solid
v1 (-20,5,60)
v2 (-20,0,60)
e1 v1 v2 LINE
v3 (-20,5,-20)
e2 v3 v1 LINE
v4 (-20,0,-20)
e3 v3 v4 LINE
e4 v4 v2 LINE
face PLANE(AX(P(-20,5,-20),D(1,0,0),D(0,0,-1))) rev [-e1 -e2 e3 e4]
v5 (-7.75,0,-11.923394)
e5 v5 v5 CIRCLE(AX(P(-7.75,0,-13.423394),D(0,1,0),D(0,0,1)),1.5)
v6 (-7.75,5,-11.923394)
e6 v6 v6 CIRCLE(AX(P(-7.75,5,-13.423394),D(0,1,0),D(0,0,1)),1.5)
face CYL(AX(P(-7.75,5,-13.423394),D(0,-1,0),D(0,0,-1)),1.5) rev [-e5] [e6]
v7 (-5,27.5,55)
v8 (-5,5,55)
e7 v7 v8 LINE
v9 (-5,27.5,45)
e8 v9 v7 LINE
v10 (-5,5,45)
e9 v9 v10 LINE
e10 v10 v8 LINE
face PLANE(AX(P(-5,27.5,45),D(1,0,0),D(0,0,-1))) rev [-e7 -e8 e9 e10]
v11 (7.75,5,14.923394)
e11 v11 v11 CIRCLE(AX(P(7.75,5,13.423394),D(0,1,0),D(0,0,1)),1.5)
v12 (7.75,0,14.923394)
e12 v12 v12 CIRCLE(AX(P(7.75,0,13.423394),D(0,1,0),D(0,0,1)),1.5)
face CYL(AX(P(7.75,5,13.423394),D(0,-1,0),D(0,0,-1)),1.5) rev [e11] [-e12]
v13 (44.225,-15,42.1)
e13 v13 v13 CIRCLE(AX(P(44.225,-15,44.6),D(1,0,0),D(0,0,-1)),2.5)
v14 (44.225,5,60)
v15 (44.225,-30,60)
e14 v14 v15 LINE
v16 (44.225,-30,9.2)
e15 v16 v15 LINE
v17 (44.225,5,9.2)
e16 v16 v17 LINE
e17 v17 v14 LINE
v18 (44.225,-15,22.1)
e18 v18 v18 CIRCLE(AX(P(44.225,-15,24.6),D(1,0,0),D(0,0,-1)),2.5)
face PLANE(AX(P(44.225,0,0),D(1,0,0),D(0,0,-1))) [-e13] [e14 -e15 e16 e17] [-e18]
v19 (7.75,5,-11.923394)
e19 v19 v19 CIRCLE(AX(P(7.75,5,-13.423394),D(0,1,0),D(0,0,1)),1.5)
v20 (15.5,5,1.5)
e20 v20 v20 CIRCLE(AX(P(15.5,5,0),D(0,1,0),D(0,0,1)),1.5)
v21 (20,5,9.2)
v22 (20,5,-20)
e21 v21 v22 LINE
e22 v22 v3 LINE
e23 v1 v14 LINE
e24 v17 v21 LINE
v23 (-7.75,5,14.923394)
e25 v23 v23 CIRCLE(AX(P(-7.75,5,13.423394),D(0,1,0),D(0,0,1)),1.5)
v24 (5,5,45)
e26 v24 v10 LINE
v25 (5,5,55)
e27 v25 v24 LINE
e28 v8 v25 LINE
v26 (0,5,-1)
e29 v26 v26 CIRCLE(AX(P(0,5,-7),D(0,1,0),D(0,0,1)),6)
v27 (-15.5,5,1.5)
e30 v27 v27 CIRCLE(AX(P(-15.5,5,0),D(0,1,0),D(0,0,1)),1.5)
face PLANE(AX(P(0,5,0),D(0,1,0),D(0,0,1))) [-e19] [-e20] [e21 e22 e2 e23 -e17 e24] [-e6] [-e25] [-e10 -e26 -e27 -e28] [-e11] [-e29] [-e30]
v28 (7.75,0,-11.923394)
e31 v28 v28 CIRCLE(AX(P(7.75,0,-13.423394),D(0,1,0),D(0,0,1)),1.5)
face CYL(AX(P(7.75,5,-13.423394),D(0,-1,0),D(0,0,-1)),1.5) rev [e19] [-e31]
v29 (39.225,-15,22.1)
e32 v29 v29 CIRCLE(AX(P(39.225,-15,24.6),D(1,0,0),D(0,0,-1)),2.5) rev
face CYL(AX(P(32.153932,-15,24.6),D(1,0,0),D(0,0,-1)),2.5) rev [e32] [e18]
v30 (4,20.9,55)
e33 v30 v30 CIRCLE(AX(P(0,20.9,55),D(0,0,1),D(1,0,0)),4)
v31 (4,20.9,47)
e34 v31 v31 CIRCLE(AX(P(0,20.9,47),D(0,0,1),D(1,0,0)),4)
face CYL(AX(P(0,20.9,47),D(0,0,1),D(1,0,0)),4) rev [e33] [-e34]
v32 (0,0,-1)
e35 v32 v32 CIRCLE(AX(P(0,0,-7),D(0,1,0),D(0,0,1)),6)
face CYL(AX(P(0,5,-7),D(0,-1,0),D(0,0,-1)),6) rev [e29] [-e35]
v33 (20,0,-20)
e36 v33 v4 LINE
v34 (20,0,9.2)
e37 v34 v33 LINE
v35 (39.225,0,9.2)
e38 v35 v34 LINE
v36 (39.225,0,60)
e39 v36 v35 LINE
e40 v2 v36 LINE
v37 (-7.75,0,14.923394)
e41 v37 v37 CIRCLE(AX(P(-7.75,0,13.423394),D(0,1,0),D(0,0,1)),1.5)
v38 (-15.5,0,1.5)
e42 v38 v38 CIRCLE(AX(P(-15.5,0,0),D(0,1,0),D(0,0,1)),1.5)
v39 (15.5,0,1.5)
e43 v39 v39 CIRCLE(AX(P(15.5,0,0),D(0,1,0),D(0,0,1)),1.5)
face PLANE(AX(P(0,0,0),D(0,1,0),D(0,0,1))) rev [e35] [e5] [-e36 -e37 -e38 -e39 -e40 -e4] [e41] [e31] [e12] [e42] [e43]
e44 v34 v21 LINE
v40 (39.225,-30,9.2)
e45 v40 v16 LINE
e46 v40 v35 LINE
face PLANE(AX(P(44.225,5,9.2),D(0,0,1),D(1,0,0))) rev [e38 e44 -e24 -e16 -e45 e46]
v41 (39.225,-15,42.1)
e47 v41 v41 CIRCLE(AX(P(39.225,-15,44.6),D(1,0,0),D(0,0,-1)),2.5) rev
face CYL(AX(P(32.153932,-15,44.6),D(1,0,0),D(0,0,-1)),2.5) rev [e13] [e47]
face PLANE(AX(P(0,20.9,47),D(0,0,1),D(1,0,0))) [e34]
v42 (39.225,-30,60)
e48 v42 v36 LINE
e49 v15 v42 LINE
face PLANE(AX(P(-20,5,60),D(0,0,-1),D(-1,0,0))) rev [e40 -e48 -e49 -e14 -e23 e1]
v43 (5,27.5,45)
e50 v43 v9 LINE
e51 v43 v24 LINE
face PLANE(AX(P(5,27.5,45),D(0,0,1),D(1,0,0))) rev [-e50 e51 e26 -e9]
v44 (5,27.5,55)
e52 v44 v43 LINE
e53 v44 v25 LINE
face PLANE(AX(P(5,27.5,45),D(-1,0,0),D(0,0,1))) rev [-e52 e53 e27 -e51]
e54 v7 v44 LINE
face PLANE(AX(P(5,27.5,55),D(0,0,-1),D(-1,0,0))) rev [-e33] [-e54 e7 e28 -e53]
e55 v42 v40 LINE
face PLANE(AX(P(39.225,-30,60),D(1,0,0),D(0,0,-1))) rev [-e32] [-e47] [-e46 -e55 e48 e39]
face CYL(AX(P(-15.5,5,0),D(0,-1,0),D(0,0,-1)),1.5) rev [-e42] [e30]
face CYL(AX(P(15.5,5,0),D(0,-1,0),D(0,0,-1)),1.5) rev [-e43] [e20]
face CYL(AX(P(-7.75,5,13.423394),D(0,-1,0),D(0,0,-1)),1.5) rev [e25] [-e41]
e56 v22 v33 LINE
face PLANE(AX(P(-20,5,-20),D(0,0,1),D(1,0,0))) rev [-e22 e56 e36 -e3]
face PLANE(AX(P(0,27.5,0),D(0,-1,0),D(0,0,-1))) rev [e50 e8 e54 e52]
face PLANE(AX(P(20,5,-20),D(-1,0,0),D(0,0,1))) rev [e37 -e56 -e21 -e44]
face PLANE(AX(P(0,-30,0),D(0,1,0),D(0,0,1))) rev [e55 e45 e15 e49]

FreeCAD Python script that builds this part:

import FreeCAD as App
import Part
import Sketcher

V = App.Vector

doc = App.newDocument("Part")
body = doc.addObject("PartDesign::Body", "Body")

sketch1 = body.newObject("Sketcher::SketchObject", "Sketch")
sketch1.AttachmentSupport = (doc.getObject("XZ_Plane"), [""])
sketch1.MapMode = "FlatFace"
sketch1.addGeometry([
    Part.LineSegment(V(-20, -20, 0), V(-20, 60, 0)),
    Part.LineSegment(V(-20, 60, 0), V(20, 60, 0)),
    Part.LineSegment(V(20, 60, 0), V(20, -20, 0)),
    Part.LineSegment(V(20, -20, 0), V(-20, -20, 0)),
], False)
sketch1.addConstraint([
    Sketcher.Constraint("Coincident", 0, 2, 1, 1),
    Sketcher.Constraint("Coincident", 1, 2, 2, 1),
    Sketcher.Constraint("Coincident", 2, 2, 3, 1),
    Sketcher.Constraint("Coincident", 3, 2, 0, 1),
    Sketcher.Constraint("Vertical", 0),
    Sketcher.Constraint("Horizontal", 1),
    Sketcher.Constraint("Vertical", 2),
    Sketcher.Constraint("Horizontal", 3),
    Sketcher.Constraint("DistanceX", 1, 1, 1, 2, 40.0),
    Sketcher.Constraint("DistanceY", 0, 1, 0, 2, 80.0),
    Sketcher.Constraint("DistanceX", 0, 2, -1, 1, 20.0),
    Sketcher.Constraint("DistanceY", -1, 1, 0, 2, 60.0),
])
pad1 = body.newObject("PartDesign::Pad", "Pad")
pad1.Profile = sketch1
pad1.Length = 5
pad1.Reversed = True

sketch2 = body.newObject("Sketcher::SketchObject", "Sketch001")
sketch2.AttachmentSupport = (doc.getObject("XZ_Plane"), [""])
sketch2.MapMode = "FlatFace"
sketch2.addGeometry([
    Part.Circle(V(-15.5, 0, 0), V(0, 0, 1), 1.5),
    Part.Circle(V(-7.8, -13.4, 0), V(0, 0, 1), 1.5),
    Part.Circle(V(7.8, -13.4, 0), V(0, 0, 1), 1.5),
    Part.Circle(V(15.5, 0, 0), V(0, 0, 1), 1.5),
    Part.Circle(V(7.8, 13.4, 0), V(0, 0, 1), 1.5),
    Part.Circle(V(-7.8, 13.4, 0), V(0, 0, 1), 1.5),
    Part.Circle(V(0, -7, 0), V(0, 0, 1), 6),
], False)
sketch2.addConstraint([
    Sketcher.Constraint("Equal", 0, 1),
    Sketcher.Constraint("Equal", 1, 2),
    Sketcher.Constraint("Equal", 2, 3),
    Sketcher.Constraint("Equal", 3, 4),
    Sketcher.Constraint("Equal", 4, 5),
    Sketcher.Constraint("Symmetric", 0, 3, 3, 3, -1, 1),
    Sketcher.Constraint("Symmetric", 1, 3, 4, 3, -1, 1),
    Sketcher.Constraint("Symmetric", 2, 3, 5, 3, -1, 1),
    Sketcher.Constraint("Symmetric", 1, 3, 2, 3, -2),
    Sketcher.Constraint("PointOnObject", 0, 3, -1),
    Sketcher.Constraint("PointOnObject", 6, 3, -2),
    Sketcher.Constraint("Diameter", 0, 3.0),
    Sketcher.Constraint("Diameter", 6, 12.0),
    Sketcher.Constraint("DistanceY", 6, 3, -1, 1, 7.0),
    Sketcher.Constraint("DistanceX", 0, 3, 3, 3, 31.0),
    Sketcher.Constraint("DistanceX", 1, 3, 2, 3, 15.5),
    Sketcher.Constraint("DistanceY", 1, 3, -1, 1, 13.423394),
])
pocket1 = body.newObject("PartDesign::Pocket", "Pocket")
pocket1.Profile = sketch2
pocket1.Type = "ThroughAll"

sketch3 = body.newObject("Sketcher::SketchObject", "Sketch002")
sketch3.AttachmentSupport = (doc.getObject("XZ_Plane"), [""])
sketch3.MapMode = "FlatFace"
sketch3.AttachmentOffset = App.Placement(V(0, 0, -5), App.Rotation())
sketch3.addGeometry([
    Part.LineSegment(V(-5, 45, 0), V(-5, 55, 0)),
    Part.LineSegment(V(-5, 55, 0), V(5, 55, 0)),
    Part.LineSegment(V(5, 55, 0), V(5, 45, 0)),
    Part.LineSegment(V(5, 45, 0), V(-5, 45, 0)),
], False)
sketch3.addConstraint([
    Sketcher.Constraint("Coincident", 0, 2, 1, 1),
    Sketcher.Constraint("Coincident", 1, 2, 2, 1),
    Sketcher.Constraint("Coincident", 2, 2, 3, 1),
    Sketcher.Constraint("Coincident", 3, 2, 0, 1),
    Sketcher.Constraint("Vertical", 0),
    Sketcher.Constraint("Horizontal", 1),
    Sketcher.Constraint("Vertical", 2),
    Sketcher.Constraint("Horizontal", 3),
    Sketcher.Constraint("Equal", 3, 0),
    Sketcher.Constraint("DistanceX", 1, 1, 1, 2, 10.0),
    Sketcher.Constraint("DistanceX", 0, 2, -1, 1, 5.0),
    Sketcher.Constraint("DistanceY", -1, 1, 0, 2, 55.0),
])
pad2 = body.newObject("PartDesign::Pad", "Pad001")
pad2.Profile = sketch3
pad2.Length = 22.5
pad2.Reversed = True

sketch4 = body.newObject("Sketcher::SketchObject", "Sketch003")
sketch4.AttachmentSupport = (doc.getObject("XY_Plane"), [""])
sketch4.MapMode = "FlatFace"
sketch4.AttachmentOffset = App.Placement(V(0, 0, 55), App.Rotation())
sketch4.addGeometry(Part.Circle(V(0, 20.9, 0), V(0, 0, 1), 4), False)
sketch4.addConstraint([
    Sketcher.Constraint("PointOnObject", 0, 3, -2),
    Sketcher.Constraint("Diameter", 0, 8.0),
    Sketcher.Constraint("DistanceY", -1, 1, 0, 3, 20.9),
])
pocket2 = body.newObject("PartDesign::Pocket", "Pocket001")
pocket2.Profile = sketch4
pocket2.Length = 8

sketch5 = body.newObject("Sketcher::SketchObject", "Sketch004")
sketch5.AttachmentSupport = (doc.getObject("YZ_Plane"), [""])
sketch5.MapMode = "FlatFace"
sketch5.AttachmentOffset = App.Placement(V(0, 0, 20), App.Rotation())
sketch5.addGeometry([
    Part.LineSegment(V(5, 60, 0), V(0, 60, 0)),
    Part.LineSegment(V(0, 60, 0), V(0, 9, 0)),
    Part.LineSegment(V(0, 9, 0), V(5, 9, 0)),
    Part.LineSegment(V(5, 9, 0), V(5, 60, 0)),
], False)
sketch5.addConstraint([
    Sketcher.Constraint("Coincident", 0, 2, 1, 1),
    Sketcher.Constraint("Coincident", 1, 2, 2, 1),
    Sketcher.Constraint("Coincident", 2, 2, 3, 1),
    Sketcher.Constraint("Coincident", 3, 2, 0, 1),
    Sketcher.Constraint("Horizontal", 0),
    Sketcher.Constraint("Vertical", 1),
    Sketcher.Constraint("Horizontal", 2),
    Sketcher.Constraint("Vertical", 3),
    Sketcher.Constraint("PointOnObject", 0, 2, -2),
    Sketcher.Constraint("DistanceX", 0, 2, 0, 1, 5.0),
    Sketcher.Constraint("DistanceY", 1, 2, 1, 1, 50.8),
    Sketcher.Constraint("DistanceY", -1, 1, 0, 2, 60.0),
])
pad3 = body.newObject("PartDesign::Pad", "Pad002")
pad3.Profile = sketch5
pad3.Length = 24.225

sketch6 = body.newObject("Sketcher::SketchObject", "Sketch005")
sketch6.AttachmentSupport = (doc.getObject("XZ_Plane"), [""])
sketch6.MapMode = "FlatFace"
sketch6.addGeometry([
    Part.LineSegment(V(39, 60, 0), V(39, 9, 0)),
    Part.LineSegment(V(39, 9, 0), V(44, 9, 0)),
    Part.LineSegment(V(44, 9, 0), V(44, 60, 0)),
    Part.LineSegment(V(44, 60, 0), V(39, 60, 0)),
], False)
sketch6.addConstraint([
    Sketcher.Constraint("Coincident", 0, 2, 1, 1),
    Sketcher.Constraint("Coincident", 1, 2, 2, 1),
    Sketcher.Constraint("Coincident", 2, 2, 3, 1),
    Sketcher.Constraint("Coincident", 3, 2, 0, 1),
    Sketcher.Constraint("Vertical", 0),
    Sketcher.Constraint("Horizontal", 1),
    Sketcher.Constraint("Vertical", 2),
    Sketcher.Constraint("Horizontal", 3),
    Sketcher.Constraint("DistanceX", 1, 1, 1, 2, 5.0),
    Sketcher.Constraint("DistanceY", 0, 2, 0, 1, 50.8),
    Sketcher.Constraint("DistanceY", -1, 1, 2, 2, 60.0),
    Sketcher.Constraint("DistanceX", -1, 1, 0, 2, 39.225),
])
pad4 = body.newObject("PartDesign::Pad", "Pad003")
pad4.Profile = sketch6
pad4.Length = 30

sketch7 = body.newObject("Sketcher::SketchObject", "Sketch006")
sketch7.AttachmentSupport = (doc.getObject("YZ_Plane"), [""])
sketch7.MapMode = "FlatFace"
sketch7.AttachmentOffset = App.Placement(V(0, 0, 44.225), App.Rotation())
sketch7.addGeometry([
    Part.Circle(V(-15, 44.6, 0), V(0, 0, 1), 2.5),
    Part.Circle(V(-15, 24.6, 0), V(0, 0, 1), 2.5),
], False)
sketch7.addConstraint([
    Sketcher.Constraint("Equal", 0, 1),
    Sketcher.Constraint("Vertical", 0, 3, 1, 3),
    Sketcher.Constraint("Diameter", 0, 5.0),
    Sketcher.Constraint("DistanceX", 0, 3, -1, 1, 15.0),
    Sketcher.Constraint("DistanceY", 1, 3, 0, 3, 20.0),
    Sketcher.Constraint("DistanceY", -1, 1, 0, 3, 44.6),
])
pocket3 = body.newObject("PartDesign::Pocket", "Pocket002")
pocket3.Profile = sketch7
pocket3.Length = 5

doc.recompute()
